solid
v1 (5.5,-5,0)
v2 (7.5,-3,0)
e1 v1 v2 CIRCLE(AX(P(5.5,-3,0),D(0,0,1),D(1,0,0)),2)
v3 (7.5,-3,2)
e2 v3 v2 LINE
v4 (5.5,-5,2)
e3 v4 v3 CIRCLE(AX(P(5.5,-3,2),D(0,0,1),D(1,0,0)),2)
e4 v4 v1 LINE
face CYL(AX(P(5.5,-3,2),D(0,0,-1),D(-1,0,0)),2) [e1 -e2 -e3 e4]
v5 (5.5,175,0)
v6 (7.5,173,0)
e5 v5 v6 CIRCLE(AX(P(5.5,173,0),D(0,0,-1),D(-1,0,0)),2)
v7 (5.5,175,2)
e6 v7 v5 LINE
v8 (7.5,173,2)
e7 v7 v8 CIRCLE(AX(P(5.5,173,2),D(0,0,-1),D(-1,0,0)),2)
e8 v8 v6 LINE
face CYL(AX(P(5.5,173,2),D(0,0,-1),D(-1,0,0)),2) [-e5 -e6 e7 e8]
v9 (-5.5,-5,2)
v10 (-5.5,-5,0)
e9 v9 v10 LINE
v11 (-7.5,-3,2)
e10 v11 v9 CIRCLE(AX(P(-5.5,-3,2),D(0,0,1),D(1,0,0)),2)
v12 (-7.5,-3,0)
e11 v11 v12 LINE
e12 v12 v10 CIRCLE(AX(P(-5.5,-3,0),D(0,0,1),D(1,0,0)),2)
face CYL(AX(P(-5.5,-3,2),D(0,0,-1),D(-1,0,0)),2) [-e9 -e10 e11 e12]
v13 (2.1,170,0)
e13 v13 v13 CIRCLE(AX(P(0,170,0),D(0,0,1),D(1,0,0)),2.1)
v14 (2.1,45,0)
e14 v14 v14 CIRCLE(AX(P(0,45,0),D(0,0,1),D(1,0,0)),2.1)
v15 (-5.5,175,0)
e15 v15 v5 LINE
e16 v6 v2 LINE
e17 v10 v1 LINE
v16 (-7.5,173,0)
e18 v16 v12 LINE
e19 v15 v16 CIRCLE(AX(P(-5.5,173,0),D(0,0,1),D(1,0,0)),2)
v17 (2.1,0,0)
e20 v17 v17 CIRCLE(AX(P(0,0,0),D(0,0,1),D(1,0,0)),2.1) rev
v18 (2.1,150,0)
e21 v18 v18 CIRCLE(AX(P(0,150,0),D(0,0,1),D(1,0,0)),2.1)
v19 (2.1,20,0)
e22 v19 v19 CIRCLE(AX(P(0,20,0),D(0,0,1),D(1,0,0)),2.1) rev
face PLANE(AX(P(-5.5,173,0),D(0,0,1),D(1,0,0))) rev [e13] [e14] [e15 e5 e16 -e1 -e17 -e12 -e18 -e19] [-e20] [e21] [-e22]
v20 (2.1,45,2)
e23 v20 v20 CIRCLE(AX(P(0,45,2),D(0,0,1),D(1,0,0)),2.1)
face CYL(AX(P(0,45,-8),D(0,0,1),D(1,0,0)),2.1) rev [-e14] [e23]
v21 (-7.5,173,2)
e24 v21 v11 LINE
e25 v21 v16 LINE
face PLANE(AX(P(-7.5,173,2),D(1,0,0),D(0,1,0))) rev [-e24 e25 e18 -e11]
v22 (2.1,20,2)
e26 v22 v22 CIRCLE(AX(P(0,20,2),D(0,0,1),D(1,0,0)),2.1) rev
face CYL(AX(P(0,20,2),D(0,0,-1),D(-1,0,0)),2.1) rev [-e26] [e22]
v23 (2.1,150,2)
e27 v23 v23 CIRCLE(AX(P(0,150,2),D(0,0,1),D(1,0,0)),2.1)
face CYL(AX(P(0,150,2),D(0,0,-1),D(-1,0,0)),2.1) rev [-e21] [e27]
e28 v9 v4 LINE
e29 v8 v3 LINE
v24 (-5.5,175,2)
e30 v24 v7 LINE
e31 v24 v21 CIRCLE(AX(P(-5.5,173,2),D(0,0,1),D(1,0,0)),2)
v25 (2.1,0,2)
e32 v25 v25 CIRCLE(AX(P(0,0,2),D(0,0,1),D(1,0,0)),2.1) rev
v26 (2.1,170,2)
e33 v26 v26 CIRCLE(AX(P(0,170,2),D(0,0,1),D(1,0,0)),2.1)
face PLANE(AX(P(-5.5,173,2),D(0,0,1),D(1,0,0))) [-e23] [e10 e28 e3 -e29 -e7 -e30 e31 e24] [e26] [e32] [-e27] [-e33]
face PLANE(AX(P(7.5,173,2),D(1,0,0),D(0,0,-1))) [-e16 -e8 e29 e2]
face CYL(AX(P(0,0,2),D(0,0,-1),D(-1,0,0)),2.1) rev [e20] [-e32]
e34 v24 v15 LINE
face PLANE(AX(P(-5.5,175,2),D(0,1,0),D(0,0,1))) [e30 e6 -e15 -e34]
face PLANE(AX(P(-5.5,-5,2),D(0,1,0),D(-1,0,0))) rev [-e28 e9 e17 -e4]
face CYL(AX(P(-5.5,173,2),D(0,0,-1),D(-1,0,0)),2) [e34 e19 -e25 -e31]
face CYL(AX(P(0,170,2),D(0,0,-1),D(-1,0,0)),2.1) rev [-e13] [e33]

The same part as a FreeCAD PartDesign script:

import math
import FreeCAD as App
import Part
import Sketcher
Q = App.Units.Quantity

doc = App.newDocument("Part")
body = doc.addObject("PartDesign::Body", "Body")

sketch1 = body.newObject("Sketcher::SketchObject", "Sketch")
sketch1.AttachmentSupport = (doc.getObject("XY_Plane"), [""])
sketch1.MapMode = "FlatFace"
sketch1.addGeometry([
    Part.LineSegment(App.Vector(-7.5, 173, 0), App.Vector(-7.5, -3, 0)),
    Part.ArcOfCircle(Part.Circle(App.Vector(-5.5, -3, 0), App.Vector(0, 0, 1), 2), math.radians(-180), math.radians(-90)),
    Part.LineSegment(App.Vector(-5.5, -5, 0), App.Vector(5.5, -5, 0)),
    Part.ArcOfCircle(Part.Circle(App.Vector(5.5, -3, 0), App.Vector(0, 0, 1), 2), math.radians(-90), math.radians(0)),
    Part.LineSegment(App.Vector(7.5, -3, 0), App.Vector(7.5, 173, 0)),
    Part.ArcOfCircle(Part.Circle(App.Vector(5.5, 173, 0), App.Vector(0, 0, 1), 2), math.radians(0), math.radians(90)),
    Part.LineSegment(App.Vector(5.5, 175, 0), App.Vector(-5.5, 175, 0)),
    Part.ArcOfCircle(Part.Circle(App.Vector(-5.5, 173, 0), App.Vector(0, 0, 1), 2), math.radians(90), math.radians(180)),
    Part.Circle(App.Vector(0, 0, 0), App.Vector(0, 0, 1), 2.1),
    Part.Circle(App.Vector(0, 20, 0), App.Vector(0, 0, 1), 2.1),
    Part.Circle(App.Vector(0, 150, 0), App.Vector(0, 0, 1), 2.1),
    Part.Circle(App.Vector(0, 170, 0), App.Vector(0, 0, 1), 2.1),
], False)
sketch1.addConstraint([
    Sketcher.Constraint("Tangent", 0, 2, 1, 1),
    Sketcher.Constraint("Tangent", 1, 2, 2, 1),
    Sketcher.Constraint("Tangent", 2, 2, 3, 1),
    Sketcher.Constraint("Tangent", 3, 2, 4, 1),
    Sketcher.Constraint("Tangent", 4, 2, 5, 1),
    Sketcher.Constraint("Tangent", 5, 2, 6, 1),
    Sketcher.Constraint("Tangent", 6, 2, 7, 1),
    Sketcher.Constraint("Tangent", 7, 2, 0, 1),
    Sketcher.Constraint("Vertical", 0),
    Sketcher.Constraint("Horizontal", 2),
    Sketcher.Constraint("Vertical", 4),
    Sketcher.Constraint("Horizontal", 6),
    Sketcher.Constraint("Coincident", 8, 3, -1, 1),
    Sketcher.Constraint("Equal", 1, 3),
    Sketcher.Constraint("Equal", 3, 5),
    Sketcher.Constraint("Equal", 5, 7),
    Sketcher.Constraint("Equal", 8, 9),
    Sketcher.Constraint("Equal", 9, 10),
    Sketcher.Constraint("Equal", 10, 11),
    Sketcher.Constraint("PointOnObject", 9, 3, -2),
    Sketcher.Constraint("PointOnObject", 10, 3, -2),
    Sketcher.Constraint("PointOnObject", 11, 3, -2),
    Sketcher.Constraint("Radius", 1, Q("2 mm")),
    Sketcher.Constraint("Diameter", 8, Q("4.2 mm")),
    Sketcher.Constraint("DistanceX", 2, 1, 2, 2, Q("11 mm")),
    Sketcher.Constraint("DistanceY", 0, 2, 0, 1, Q("176 mm")),
    Sketcher.Constraint("DistanceY", 1, 3, -1, 1, Q("3 mm")),
    Sketcher.Constraint("DistanceY", -1, 1, 9, 3, Q("20 mm")),
    Sketcher.Constraint("DistanceY", -1, 1, 10, 3, Q("150 mm")),
    Sketcher.Constraint("DistanceY", -1, 1, 11, 3, Q("170 mm")),
    Sketcher.Constraint("DistanceX", 1, 3, -1, 1, Q("5.5 mm")),
])
pad1 = body.newObject("PartDesign::Pad", "Pad")
pad1.Profile = sketch1
pad1.Length = 2

sketch2 = body.newObject("Sketcher::SketchObject", "Sketch001")
sketch2.AttachmentSupport = (doc.getObject("XY_Plane"), [""])
sketch2.MapMode = "FlatFace"
sketch2.AttachmentOffset = App.Placement(App.Vector(0, 0, 2), App.Rotation())
sketch2.addGeometry(Part.Circle(App.Vector(0, 45, 0), App.Vector(0, 0, 1), 2.1), False)
sketch2.addConstraint([
    Sketcher.Constraint("PointOnObject", 0, 3, -2),
    Sketcher.Constraint("Diameter", 0, Q("4.2 mm")),
    Sketcher.Constraint("DistanceY", -1, 1, 0, 3, Q("45 mm")),
])
pocket1 = body.newObject("PartDesign::Pocket", "Pocket")
pocket1.Profile = sketch2
pocket1.Length = 10

doc.recompute()
